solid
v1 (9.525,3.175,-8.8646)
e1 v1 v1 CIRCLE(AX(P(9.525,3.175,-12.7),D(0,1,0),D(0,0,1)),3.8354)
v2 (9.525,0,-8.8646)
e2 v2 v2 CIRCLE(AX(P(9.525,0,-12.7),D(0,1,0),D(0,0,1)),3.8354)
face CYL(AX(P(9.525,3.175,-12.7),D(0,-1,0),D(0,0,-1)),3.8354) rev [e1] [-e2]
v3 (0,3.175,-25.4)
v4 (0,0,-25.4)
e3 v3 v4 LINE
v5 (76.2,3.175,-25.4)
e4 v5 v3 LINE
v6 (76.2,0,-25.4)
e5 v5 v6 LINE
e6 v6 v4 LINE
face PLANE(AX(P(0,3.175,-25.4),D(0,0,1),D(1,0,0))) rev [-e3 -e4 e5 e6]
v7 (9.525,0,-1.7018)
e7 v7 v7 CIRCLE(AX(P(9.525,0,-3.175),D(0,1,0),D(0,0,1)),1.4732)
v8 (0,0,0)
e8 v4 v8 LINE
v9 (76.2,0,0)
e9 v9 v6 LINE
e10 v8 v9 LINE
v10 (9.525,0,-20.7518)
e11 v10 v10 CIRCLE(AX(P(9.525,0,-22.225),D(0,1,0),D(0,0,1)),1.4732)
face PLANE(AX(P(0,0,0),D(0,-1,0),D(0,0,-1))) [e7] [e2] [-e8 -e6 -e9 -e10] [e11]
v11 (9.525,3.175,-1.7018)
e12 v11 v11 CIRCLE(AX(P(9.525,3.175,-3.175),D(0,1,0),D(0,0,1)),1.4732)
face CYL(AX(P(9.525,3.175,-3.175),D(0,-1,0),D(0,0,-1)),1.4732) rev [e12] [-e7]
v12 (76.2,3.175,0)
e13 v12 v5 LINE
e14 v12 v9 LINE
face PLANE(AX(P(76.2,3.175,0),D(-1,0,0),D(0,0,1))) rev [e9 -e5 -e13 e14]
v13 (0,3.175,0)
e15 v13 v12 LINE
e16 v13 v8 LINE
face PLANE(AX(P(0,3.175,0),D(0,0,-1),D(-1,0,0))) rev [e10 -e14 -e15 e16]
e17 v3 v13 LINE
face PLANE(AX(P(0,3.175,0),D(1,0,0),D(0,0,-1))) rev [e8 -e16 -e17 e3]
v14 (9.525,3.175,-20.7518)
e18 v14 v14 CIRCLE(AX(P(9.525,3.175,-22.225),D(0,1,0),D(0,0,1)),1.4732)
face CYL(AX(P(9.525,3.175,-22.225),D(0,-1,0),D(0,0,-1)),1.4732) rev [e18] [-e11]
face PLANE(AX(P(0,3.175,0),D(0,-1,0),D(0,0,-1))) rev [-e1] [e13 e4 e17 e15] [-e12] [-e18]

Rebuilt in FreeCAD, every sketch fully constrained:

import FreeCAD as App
import Part
import Sketcher

V = App.Vector
Q = App.Units.Quantity

doc = App.newDocument("Part")
body = doc.addObject("PartDesign::Body", "Body")

sketch1 = doc.addObject("Sketcher::SketchObject", "Sketch")
body.addObject(sketch1)
sketch1.AttachmentSupport = (doc.XZ_Plane, [""])
sketch1.MapMode = "FlatFace"
sketch1.addGeometry([
    Part.LineSegment(V(0, -25.4, 0), V(0, 0, 0)),
    Part.LineSegment(V(0, 0, 0), V(76.2, 0, 0)),
    Part.LineSegment(V(76.2, 0, 0), V(76.2, -25.4, 0)),
    Part.LineSegment(V(76.2, -25.4, 0), V(0, -25.4, 0)),
    Part.Circle(V(9.525, -3.175, 0), V(0, 0, 1), 1.4732),
    Part.Circle(V(9.525, -12.7, 0), V(0, 0, 1), 3.8354),
    Part.Circle(V(9.525, -22.225, 0), V(0, 0, 1), 1.4732),
], False)
sketch1.addConstraint([
    Sketcher.Constraint("Coincident", 0, 2, 1, 1),
    Sketcher.Constraint("Coincident", 1, 2, 2, 1),
    Sketcher.Constraint("Coincident", 2, 2, 3, 1),
    Sketcher.Constraint("Coincident", 3, 2, 0, 1),
    Sketcher.Constraint("Vertical", 0),
    Sketcher.Constraint("Horizontal", 1),
    Sketcher.Constraint("Vertical", 2),
    Sketcher.Constraint("Horizontal", 3),
    Sketcher.Constraint("Coincident", 0, 2, -1, 1),
    Sketcher.Constraint("Equal", 4, 6),
    Sketcher.Constraint("Vertical", 4, 3, 5, 3),
    Sketcher.Constraint("Vertical", 5, 3, 6, 3),
    Sketcher.Constraint("DistanceX", 1, 1, 1, 2, Q("3 in")),
    Sketcher.Constraint("DistanceY", 0, 1, 0, 2, Q("1 in")),
    Sketcher.Constraint("Diameter", 4, Q("0.116 in")),
    Sketcher.Constraint("Diameter", 5, Q("0.302 in")),
    Sketcher.Constraint("DistanceY", 5, 3, -1, 1, Q("0.5 in")),
    Sketcher.Constraint("DistanceY", 6, 3, 4, 3, Q("0.75 in")),
    Sketcher.Constraint("DistanceX", -1, 1, 4, 3, Q("0.375 in")),
    Sketcher.Constraint("DistanceY", 4, 3, -1, 1, Q("0.125 in")),
])
pad1 = doc.addObject("PartDesign::Pad", "Pad")
body.addObject(pad1)
pad1.Profile = sketch1
pad1.Length = Q("0.125 in")
pad1.Reversed = True

doc.recompute()
